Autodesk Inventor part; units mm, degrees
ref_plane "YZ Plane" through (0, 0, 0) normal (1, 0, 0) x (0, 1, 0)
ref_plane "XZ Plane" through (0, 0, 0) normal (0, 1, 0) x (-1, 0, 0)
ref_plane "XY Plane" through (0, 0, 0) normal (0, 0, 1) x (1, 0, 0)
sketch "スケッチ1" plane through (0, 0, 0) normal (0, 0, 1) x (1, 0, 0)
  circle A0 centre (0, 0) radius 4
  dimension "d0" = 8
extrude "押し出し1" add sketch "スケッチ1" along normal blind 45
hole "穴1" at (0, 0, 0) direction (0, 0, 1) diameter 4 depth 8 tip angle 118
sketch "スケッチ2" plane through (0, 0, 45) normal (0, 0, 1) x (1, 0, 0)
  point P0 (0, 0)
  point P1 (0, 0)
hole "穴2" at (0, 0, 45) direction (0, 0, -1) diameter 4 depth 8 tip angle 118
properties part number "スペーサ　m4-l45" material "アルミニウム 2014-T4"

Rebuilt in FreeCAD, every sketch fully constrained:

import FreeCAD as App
import Part
import Sketcher
Q = App.Units.Quantity

doc = App.newDocument("Part")
body = doc.addObject("PartDesign::Body", "Body")

sketch1 = body.newObject("Sketcher::SketchObject", "Sketch")
sketch1.AttachmentSupport = (doc.getObject("XY_Plane"), [""])
sketch1.MapMode = "FlatFace"
sketch1.addGeometry(Part.Circle(App.Vector(0, 0, 0), App.Vector(0, 0, 1), 4), False)
sketch1.addConstraint([
    Sketcher.Constraint("Coincident", 0, 3, -1, 1),
    Sketcher.Constraint("Diameter", 0, Q("8 mm")),
])
pad1 = body.newObject("PartDesign::Pad", "Pad")
pad1.Profile = sketch1
pad1.Length = 45

sketch2 = body.newObject("Sketcher::SketchObject", "Sketch001")
sketch2.AttachmentSupport = (doc.getObject("XY_Plane"), [""])
sketch2.MapMode = "FlatFace"
sketch2.addGeometry(Part.Circle(App.Vector(0, 0, 0), App.Vector(0, 0, 1), 2), False)
sketch2.addConstraint([
    Sketcher.Constraint("Coincident", 0, 3, -1, 1),
    Sketcher.Constraint("Diameter", 0, Q("4 mm")),
])
doc.recompute()
hole = body.newObject("PartDesign::Hole", "Hole")
hole.Profile = sketch2
hole.ThreadType = "None"
hole.Diameter = 4
hole.DepthType = "Dimension"
hole.Depth = 8
hole.DrillPoint = "Angled"
hole.DrillPointAngle = 118
hole.Reversed = True

sketch3 = body.newObject("Sketcher::SketchObject", "Sketch002")
sketch3.AttachmentSupport = (doc.getObject("XY_Plane"), [""])
sketch3.MapMode = "FlatFace"
sketch3.AttachmentOffset = App.Placement(App.Vector(0, 0, 45), App.Rotation())
sketch3.addGeometry(Part.Circle(App.Vector(0, 0, 0), App.Vector(0, 0, 1), 2), False)
sketch3.addConstraint([
    Sketcher.Constraint("Coincident", 0, 3, -1, 1),
    Sketcher.Constraint("Diameter", 0, Q("4 mm")),
])
doc.recompute()
hole2 = body.newObject("PartDesign::Hole", "Hole001")
hole2.Profile = sketch3
hole2.ThreadType = "None"
hole2.Diameter = 4
hole2.DepthType = "Dimension"
hole2.Depth = 8
hole2.DrillPoint = "Angled"
hole2.DrillPointAngle = 118

doc.recompute()
